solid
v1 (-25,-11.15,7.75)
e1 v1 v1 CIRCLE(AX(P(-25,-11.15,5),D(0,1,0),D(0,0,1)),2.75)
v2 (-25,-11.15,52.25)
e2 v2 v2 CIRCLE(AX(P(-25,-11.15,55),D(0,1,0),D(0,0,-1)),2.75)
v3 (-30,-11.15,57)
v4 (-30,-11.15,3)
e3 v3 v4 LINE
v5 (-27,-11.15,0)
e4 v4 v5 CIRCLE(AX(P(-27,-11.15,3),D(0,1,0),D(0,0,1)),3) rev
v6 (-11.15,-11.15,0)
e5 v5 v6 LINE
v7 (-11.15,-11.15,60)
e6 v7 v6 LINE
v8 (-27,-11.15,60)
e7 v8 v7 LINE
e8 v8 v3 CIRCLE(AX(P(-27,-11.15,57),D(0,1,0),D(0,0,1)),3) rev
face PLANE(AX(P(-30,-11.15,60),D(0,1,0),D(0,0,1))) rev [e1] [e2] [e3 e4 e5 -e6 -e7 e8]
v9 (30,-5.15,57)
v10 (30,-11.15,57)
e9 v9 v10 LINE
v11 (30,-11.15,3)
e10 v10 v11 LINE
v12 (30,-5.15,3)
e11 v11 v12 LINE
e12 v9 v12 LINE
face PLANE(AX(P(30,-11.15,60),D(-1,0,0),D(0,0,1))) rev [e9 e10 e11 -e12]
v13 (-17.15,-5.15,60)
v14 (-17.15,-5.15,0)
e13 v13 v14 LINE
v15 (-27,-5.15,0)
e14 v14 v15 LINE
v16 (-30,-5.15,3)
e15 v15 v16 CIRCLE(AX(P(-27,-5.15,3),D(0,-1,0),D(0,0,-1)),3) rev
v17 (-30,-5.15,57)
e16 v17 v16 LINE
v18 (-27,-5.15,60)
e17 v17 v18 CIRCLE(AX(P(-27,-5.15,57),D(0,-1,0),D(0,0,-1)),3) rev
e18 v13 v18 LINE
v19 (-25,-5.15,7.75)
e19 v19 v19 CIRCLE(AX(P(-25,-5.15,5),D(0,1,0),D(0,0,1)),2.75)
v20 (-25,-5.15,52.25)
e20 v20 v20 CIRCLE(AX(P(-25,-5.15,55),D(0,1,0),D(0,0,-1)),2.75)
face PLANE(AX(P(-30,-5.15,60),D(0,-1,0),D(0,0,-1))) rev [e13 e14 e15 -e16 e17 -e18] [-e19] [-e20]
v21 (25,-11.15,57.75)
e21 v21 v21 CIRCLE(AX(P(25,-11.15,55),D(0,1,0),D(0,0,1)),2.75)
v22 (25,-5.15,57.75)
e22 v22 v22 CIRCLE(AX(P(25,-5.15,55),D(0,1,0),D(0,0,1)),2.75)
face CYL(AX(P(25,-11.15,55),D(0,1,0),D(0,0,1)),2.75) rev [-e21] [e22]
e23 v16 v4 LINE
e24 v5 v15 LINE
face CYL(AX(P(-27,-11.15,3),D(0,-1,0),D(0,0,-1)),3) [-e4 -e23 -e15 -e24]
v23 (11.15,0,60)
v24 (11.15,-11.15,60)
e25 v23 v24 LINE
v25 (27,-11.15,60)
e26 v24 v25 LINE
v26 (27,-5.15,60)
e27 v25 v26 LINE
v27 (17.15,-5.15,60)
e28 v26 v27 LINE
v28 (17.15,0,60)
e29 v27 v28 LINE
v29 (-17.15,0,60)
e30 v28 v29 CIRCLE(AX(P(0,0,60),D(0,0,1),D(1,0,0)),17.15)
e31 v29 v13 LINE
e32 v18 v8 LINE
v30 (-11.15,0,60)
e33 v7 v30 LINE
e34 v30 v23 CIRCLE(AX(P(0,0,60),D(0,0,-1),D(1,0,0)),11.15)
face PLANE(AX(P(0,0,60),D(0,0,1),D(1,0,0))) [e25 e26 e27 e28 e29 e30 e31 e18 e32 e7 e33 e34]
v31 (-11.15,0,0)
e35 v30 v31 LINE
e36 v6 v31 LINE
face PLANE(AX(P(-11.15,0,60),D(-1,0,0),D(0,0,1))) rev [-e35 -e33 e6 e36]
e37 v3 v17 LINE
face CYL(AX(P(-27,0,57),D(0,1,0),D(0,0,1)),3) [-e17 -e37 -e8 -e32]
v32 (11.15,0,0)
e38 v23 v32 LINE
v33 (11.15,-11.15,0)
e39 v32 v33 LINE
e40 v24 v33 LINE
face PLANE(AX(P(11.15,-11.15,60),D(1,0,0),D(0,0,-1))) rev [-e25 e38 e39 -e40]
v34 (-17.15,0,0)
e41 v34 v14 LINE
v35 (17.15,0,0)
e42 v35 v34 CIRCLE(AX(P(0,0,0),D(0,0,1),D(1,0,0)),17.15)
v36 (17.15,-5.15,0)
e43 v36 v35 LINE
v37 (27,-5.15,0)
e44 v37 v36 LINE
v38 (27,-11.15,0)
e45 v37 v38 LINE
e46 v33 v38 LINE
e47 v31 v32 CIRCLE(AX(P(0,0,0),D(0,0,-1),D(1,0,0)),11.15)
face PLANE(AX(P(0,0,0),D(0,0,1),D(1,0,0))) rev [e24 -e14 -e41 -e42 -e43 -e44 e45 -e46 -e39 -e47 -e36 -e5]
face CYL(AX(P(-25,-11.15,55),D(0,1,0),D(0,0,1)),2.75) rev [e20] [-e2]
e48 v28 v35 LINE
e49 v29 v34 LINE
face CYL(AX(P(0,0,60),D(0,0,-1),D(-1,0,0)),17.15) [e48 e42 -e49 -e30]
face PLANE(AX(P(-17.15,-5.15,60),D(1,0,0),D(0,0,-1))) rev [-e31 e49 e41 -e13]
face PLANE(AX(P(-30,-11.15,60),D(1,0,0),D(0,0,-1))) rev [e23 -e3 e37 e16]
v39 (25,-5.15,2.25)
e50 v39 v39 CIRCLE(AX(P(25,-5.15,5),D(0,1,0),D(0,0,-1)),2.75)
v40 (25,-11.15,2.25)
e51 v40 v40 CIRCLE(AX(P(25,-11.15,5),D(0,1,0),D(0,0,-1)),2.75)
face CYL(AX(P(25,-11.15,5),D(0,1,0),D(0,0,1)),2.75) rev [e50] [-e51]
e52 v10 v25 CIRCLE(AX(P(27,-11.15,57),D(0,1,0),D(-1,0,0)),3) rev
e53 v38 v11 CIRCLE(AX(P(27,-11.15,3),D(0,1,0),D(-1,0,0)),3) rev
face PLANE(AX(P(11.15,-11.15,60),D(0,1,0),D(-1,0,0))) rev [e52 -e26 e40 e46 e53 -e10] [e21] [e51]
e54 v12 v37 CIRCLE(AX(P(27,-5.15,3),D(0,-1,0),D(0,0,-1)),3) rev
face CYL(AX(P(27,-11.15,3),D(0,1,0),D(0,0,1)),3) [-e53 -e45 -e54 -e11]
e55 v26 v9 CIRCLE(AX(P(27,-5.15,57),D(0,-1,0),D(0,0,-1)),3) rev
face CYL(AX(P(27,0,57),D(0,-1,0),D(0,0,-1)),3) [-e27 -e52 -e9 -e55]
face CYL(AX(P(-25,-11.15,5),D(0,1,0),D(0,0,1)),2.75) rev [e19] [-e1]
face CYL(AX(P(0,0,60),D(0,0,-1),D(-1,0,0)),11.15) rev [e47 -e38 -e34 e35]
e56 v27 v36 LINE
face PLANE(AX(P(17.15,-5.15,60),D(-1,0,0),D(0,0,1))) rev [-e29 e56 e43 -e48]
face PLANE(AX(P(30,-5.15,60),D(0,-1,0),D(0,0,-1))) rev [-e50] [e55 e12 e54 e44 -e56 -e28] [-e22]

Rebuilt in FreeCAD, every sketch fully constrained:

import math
import FreeCAD as App
import Part
import Sketcher

V = App.Vector
Q = App.Units.Quantity


def edges_at(feature, points):
    """Names of the edges that pass closest to the given points."""
    edges = feature.Shape.Edges
    near = lambda p: min(range(len(edges)), key=lambda i: edges[i].distToShape(Part.Vertex(*p))[0])
    return sorted({f"Edge{near(p) + 1}" for p in points})

doc = App.newDocument("Part")
params = doc.addObject("Spreadsheet::Sheet", "Params")
for row, (alias, value) in enumerate([
    ("sketch1_height", "6 mm"),
    ("sketch1_radius", "11.15 mm"),
    ("sketch1_radius2", "17.15 mm"),
    ("sketch1_height2", "11.15 mm"),
    ("pad1_length", "60 mm"),
    ("sketch2_diameter", "5.5 mm"),
    ("pocket1_length", "6 mm"),
    ("fillet_radius", "3 mm"),
], start=1):
    params.set(f"A{row}", alias)
    params.set(f"B{row}", "=" + value)
    params.setAlias(f"B{row}", alias)

body = doc.addObject("PartDesign::Body", "Body")

# Sketch on XY plane
sketch1 = doc.addObject("Sketcher::SketchObject", "Sketch")
body.addObject(sketch1)
sketch1.AttachmentSupport = (doc.XY_Plane, [""])
sketch1.MapMode = "FlatFace"
sketch1.addGeometry([
    Part.LineSegment(V(-11.15, -11.15, 0), V(-11.15, 0, 0)),  # 0
    Part.ArcOfCircle(Part.Circle(V(0, 0, 0), V(0, 0, 1), 11.15), math.radians(0), math.radians(180)),  # 1
    Part.LineSegment(V(11.15, 0, 0), V(11.15, -11.15, 0)),  # 2
    Part.LineSegment(V(11.15, -11.15, 0), V(30, -11.15, 0)),  # 3
    Part.LineSegment(V(30, -11.15, 0), V(30, -5.15, 0)),  # 4
    Part.LineSegment(V(30, -5.15, 0), V(17.15, -5.15, 0)),  # 5
    Part.LineSegment(V(17.15, -5.15, 0), V(17.15, 0, 0)),  # 6
    Part.ArcOfCircle(Part.Circle(V(0, 0, 0), V(0, 0, 1), 17.15), math.radians(0), math.radians(180)),  # 7
    Part.LineSegment(V(-17.15, 0, 0), V(-17.15, -5.15, 0)),  # 8
    Part.LineSegment(V(-17.15, -5.15, 0), V(-30, -5.15, 0)),  # 9
    Part.LineSegment(V(-30, -5.15, 0), V(-30, -11.15, 0)),  # 10
    Part.LineSegment(V(-30, -11.15, 0), V(-11.15, -11.15, 0)),  # 11
], False)
sketch1.addConstraint([
    Sketcher.Constraint("Tangent", 0, 2, 1, 2),
    Sketcher.Constraint("Tangent", 1, 1, 2, 1),
    Sketcher.Constraint("Coincident", 2, 2, 3, 1),
    Sketcher.Constraint("Coincident", 3, 2, 4, 1),
    Sketcher.Constraint("Coincident", 4, 2, 5, 1),
    Sketcher.Constraint("Coincident", 5, 2, 6, 1),
    Sketcher.Constraint("Tangent", 6, 2, 7, 1),
    Sketcher.Constraint("Tangent", 7, 2, 8, 1),
    Sketcher.Constraint("Coincident", 8, 2, 9, 1),
    Sketcher.Constraint("Coincident", 9, 2, 10, 1),
    Sketcher.Constraint("Coincident", 10, 2, 11, 1),
    Sketcher.Constraint("Coincident", 11, 2, 0, 1),
    Sketcher.Constraint("Vertical", 0),
    Sketcher.Constraint("Vertical", 2),
    Sketcher.Constraint("Horizontal", 3),
    Sketcher.Constraint("Vertical", 4),
    Sketcher.Constraint("Horizontal", 5),
    Sketcher.Constraint("Vertical", 6),
    Sketcher.Constraint("Vertical", 8),
    Sketcher.Constraint("Horizontal", 9),
    Sketcher.Constraint("Vertical", 10),
    Sketcher.Constraint("Horizontal", 11),
    Sketcher.Constraint("Coincident", 1, 3, -1, 1),
    Sketcher.Constraint("Coincident", 7, 3, -1, 1),
    Sketcher.Constraint("Symmetric", 4, 2, 9, 2, -2),
    Sketcher.Constraint("Horizontal", 3, 2, 10, 2),
    Sketcher.Constraint("DistanceY", 4, 1, 4, 2, Q("6 mm")),
    Sketcher.Constraint("Radius", 1, Q("11.15 mm")),
    Sketcher.Constraint("Radius", 7, Q("17.15 mm")),
    Sketcher.Constraint("DistanceX", -1, 1, 3, 2, Q("30 mm")),
    Sketcher.Constraint("DistanceY", 0, 1, 0, 2, Q("11.15 mm")),
])
sketch1.setExpression("Constraints[26]", "Params.sketch1_height")
sketch1.setExpression("Constraints[27]", "Params.sketch1_radius")
sketch1.setExpression("Constraints[28]", "Params.sketch1_radius2")
sketch1.setExpression("Constraints[30]", "Params.sketch1_height2")
pad1 = doc.addObject("PartDesign::Pad", "Pad")
body.addObject(pad1)
pad1.Profile = sketch1
pad1.setExpression("Length", "Params.pad1_length")

# Sketch on XZ plane
sketch2 = doc.addObject("Sketcher::SketchObject", "Sketch001")
body.addObject(sketch2)
sketch2.AttachmentSupport = (doc.XZ_Plane, [""])
sketch2.MapMode = "FlatFace"
sketch2.AttachmentOffset = App.Placement(V(0, 0, 5.15), App.Rotation())
sketch2.addGeometry([
    Part.Circle(V(-25, 5, 0), V(0, 0, 1), 2.75),
    Part.Circle(V(-25, 55, 0), V(0, 0, 1), 2.75),
    Part.Circle(V(25, 55, 0), V(0, 0, 1), 2.75),
    Part.Circle(V(25, 5, 0), V(0, 0, 1), 2.75),
], False)
sketch2.addConstraint([
    Sketcher.Constraint("Equal", 0, 1),
    Sketcher.Constraint("Equal", 1, 2),
    Sketcher.Constraint("Equal", 2, 3),
    Sketcher.Constraint("Symmetric", 1, 3, 2, 3, -2),
    Sketcher.Constraint("Symmetric", 0, 3, 3, 3, -2),
    Sketcher.Constraint("Vertical", 0, 3, 1, 3),
    Sketcher.Constraint("Diameter", 0, Q("5.5 mm")),
    Sketcher.Constraint("DistanceX", 0, 3, -1, 1, Q("25 mm")),
    Sketcher.Constraint("DistanceY", -1, 1, 0, 3, Q("5 mm")),
    Sketcher.Constraint("DistanceY", -1, 1, 1, 3, Q("55 mm")),
])
sketch2.setExpression("Constraints[6]", "Params.sketch2_diameter")
pocket1 = doc.addObject("PartDesign::Pocket", "Pocket")
body.addObject(pocket1)
pocket1.Profile = sketch2
pocket1.setExpression("Length", "Params.pocket1_length")
pocket1.Reversed = True
doc.recompute()

fillet = doc.addObject("PartDesign::Fillet", "Fillet")
body.addObject(fillet)
fillet.Base = (pocket1, edges_at(pocket1, [
    (-30, -8.15, 0),
    (30, -8.15, 0),
    (30, -8.15, 60),
    (-30, -8.15, 60),
]))
fillet.setExpression("Radius", "Params.fillet_radius")

doc.recompute()
